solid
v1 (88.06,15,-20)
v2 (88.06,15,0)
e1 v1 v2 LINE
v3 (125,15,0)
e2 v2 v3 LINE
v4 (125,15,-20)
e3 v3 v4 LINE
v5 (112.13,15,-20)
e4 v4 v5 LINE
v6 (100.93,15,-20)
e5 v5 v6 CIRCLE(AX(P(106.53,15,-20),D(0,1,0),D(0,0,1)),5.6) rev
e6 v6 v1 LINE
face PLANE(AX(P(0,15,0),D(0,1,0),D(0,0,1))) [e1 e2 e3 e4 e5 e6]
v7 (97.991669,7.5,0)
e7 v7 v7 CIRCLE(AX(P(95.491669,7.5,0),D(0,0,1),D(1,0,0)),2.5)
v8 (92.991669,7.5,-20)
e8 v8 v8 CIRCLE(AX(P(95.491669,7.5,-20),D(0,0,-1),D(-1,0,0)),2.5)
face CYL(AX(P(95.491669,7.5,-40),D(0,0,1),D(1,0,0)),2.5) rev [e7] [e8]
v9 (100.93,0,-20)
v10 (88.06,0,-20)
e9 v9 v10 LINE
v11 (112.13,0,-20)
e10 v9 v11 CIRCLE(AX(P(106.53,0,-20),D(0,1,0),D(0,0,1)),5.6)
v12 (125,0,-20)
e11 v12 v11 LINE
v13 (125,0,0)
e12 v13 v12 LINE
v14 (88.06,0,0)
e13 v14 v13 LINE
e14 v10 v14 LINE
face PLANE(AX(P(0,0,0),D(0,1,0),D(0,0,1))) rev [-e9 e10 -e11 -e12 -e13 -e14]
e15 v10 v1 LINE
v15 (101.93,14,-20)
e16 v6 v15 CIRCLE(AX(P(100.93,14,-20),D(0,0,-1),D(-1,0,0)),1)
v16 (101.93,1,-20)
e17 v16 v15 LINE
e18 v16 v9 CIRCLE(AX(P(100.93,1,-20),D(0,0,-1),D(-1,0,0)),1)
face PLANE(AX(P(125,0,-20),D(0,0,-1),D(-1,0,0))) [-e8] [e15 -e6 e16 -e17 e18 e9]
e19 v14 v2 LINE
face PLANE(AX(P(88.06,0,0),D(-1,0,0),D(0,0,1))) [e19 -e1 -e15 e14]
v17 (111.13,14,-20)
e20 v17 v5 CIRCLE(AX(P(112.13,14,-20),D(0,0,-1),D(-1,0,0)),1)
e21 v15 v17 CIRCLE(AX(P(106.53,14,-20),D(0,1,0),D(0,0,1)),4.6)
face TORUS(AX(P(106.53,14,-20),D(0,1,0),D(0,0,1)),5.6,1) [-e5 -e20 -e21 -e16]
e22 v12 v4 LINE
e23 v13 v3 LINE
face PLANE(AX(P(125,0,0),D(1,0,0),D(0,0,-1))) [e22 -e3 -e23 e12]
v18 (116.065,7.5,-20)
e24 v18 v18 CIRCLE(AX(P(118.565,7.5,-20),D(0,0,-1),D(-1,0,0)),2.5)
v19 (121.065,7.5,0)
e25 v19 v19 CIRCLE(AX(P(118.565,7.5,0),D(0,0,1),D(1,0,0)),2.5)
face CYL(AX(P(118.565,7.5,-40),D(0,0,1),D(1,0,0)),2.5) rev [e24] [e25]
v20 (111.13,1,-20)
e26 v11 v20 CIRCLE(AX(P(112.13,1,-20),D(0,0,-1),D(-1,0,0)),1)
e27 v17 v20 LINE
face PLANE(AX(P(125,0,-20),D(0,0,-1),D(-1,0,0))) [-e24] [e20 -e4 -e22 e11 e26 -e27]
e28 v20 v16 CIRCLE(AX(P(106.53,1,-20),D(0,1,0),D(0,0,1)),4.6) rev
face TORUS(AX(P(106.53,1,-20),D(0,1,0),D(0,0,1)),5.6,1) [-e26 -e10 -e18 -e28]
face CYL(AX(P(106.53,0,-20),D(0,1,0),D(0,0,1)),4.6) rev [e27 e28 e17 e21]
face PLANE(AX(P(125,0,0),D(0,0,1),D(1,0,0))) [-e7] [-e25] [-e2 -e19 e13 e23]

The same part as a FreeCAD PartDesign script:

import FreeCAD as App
import Part
import Sketcher

V = App.Vector


def edges_at(feature, points):
    """Names of the edges that pass closest to the given points."""
    edges = feature.Shape.Edges
    near = lambda p: min(range(len(edges)), key=lambda i: edges[i].distToShape(Part.Vertex(*p))[0])
    return sorted({f"Edge{near(p) + 1}" for p in points})


def add_polygon(sketch, points):
    """Adds a closed chain of lines whose ends are joined by coincident constraints."""
    first, n = sketch.GeometryCount, len(points)
    for a, b in zip(points, points[1:] + points[:1]):
        sketch.addGeometry(Part.LineSegment(App.Vector(*a, 0), App.Vector(*b, 0)), False)
    for i in range(n):
        sketch.addConstraint(Sketcher.Constraint("Coincident", first + i, 2, first + (i + 1) % n, 1))

doc = App.newDocument("Part")
body = doc.addObject("PartDesign::Body", "Body")

sketch1 = body.newObject("Sketcher::SketchObject", "Sketch")
sketch1.AttachmentSupport = (doc.getObject("XZ_Plane"), [""])
sketch1.MapMode = "FlatFace"
add_polygon(sketch1, [(0, -40), (0, 0), (125, 0), (125, -40)])
sketch1.addConstraint([
    Sketcher.Constraint("Vertical", 0),
    Sketcher.Constraint("Horizontal", 1),
    Sketcher.Constraint("Vertical", 2),
    Sketcher.Constraint("Horizontal", 3),
    Sketcher.Constraint("Coincident", 0, 2, -1, 1),
    Sketcher.Constraint("DistanceX", 1, 1, 1, 2, 125.0),
    Sketcher.Constraint("DistanceY", 0, 1, 0, 2, 40.0),
])
pad1 = body.newObject("PartDesign::Pad", "Pad")
pad1.Profile = sketch1
pad1.Length = 15
pad1.Reversed = True

sketch2 = body.newObject("Sketcher::SketchObject", "Sketch001")
sketch2.AttachmentSupport = (doc.getObject("XZ_Plane"), [""])
sketch2.MapMode = "FlatFace"
sketch2.AttachmentOffset = App.Placement(V(0, 0, -15), App.Rotation())
sketch2.addGeometry([
    Part.Circle(V(18.5, -20, 0), V(0, 0, 1), 8.9),
    Part.Circle(V(106.5, -20, 0), V(0, 0, 1), 4.6),
    Part.Circle(V(62.5, -20, 0), V(0, 0, 1), 13.3),
], False)
sketch2.addConstraint([
    Sketcher.Constraint("Horizontal", 0, 3, 1, 3),
    Sketcher.Constraint("Horizontal", 1, 3, 2, 3),
    Sketcher.Constraint("Diameter", 0, 17.8),
    Sketcher.Constraint("Diameter", 1, 9.2),
    Sketcher.Constraint("Diameter", 2, 26.6),
    Sketcher.Constraint("DistanceY", 0, 3, -1, 1, 20.0),
    Sketcher.Constraint("DistanceX", 0, 3, 1, 3, 88.0),
    Sketcher.Constraint("DistanceX", 0, 3, 2, 3, 44.0),
    Sketcher.Constraint("DistanceX", -1, 1, 0, 3, 18.526669),
])
pocket1 = body.newObject("PartDesign::Pocket", "Pocket")
pocket1.Profile = sketch2
pocket1.Type = "ThroughAll"
pocket1.Reversed = True
doc.recompute()

chamfer = body.newObject("PartDesign::Chamfer", "Chamfer")
chamfer.Base = (pocket1, edges_at(pocket1, [(18.527, 15, -28.9)]))
chamfer.Size = 1
doc.recompute()

chamfer2 = body.newObject("PartDesign::Chamfer", "Chamfer001")
chamfer2.Base = (chamfer, edges_at(chamfer, [(18.527, 0, -28.9)]))
chamfer2.Size = 1
doc.recompute()

fillet = body.newObject("PartDesign::Fillet", "Fillet")
fillet.Base = (chamfer2, edges_at(chamfer2, [
    (106.527, 0, -24.6),
    (106.527, 15, -24.6),
    (62.527, 0, -33.3),
    (62.527, 15, -33.3),
]))
fillet.Radius = 1

sketch3 = body.newObject("Sketcher::SketchObject", "Sketch002")
sketch3.AttachmentSupport = (doc.getObject("XZ_Plane"), [""])
sketch3.MapMode = "FlatFace"
sketch3.AttachmentOffset = App.Placement(V(0, 0, -15), App.Rotation())
add_polygon(sketch3, [(85, -20), (85, 0), (125, 0), (125, -20)])
sketch3.addConstraint([
    Sketcher.Constraint("Vertical", 0),
    Sketcher.Constraint("Horizontal", 1),
    Sketcher.Constraint("Vertical", 2),
    Sketcher.Constraint("Horizontal", 3),
    Sketcher.Constraint("PointOnObject", 0, 2, -1),
    Sketcher.Constraint("DistanceX", 1, 1, 1, 2, 40.0),
    Sketcher.Constraint("DistanceY", 0, 1, 0, 2, 20.0),
    Sketcher.Constraint("DistanceX", -1, 1, 0, 2, 85.0),
])
pocket2 = body.newObject("PartDesign::Pocket", "Pocket001")
pocket2.Profile = sketch3
pocket2.Type = "ThroughAll"
pocket2.Reversed = True
doc.recompute()

fillet2 = body.newObject("PartDesign::Fillet", "Fillet001")
fillet2.Base = (pocket2, edges_at(pocket2, [(0, 7.5, -40), (0, 7.5, 0)]))
fillet2.Radius = 5

sketch4 = body.newObject("Sketcher::SketchObject", "Sketch003")
sketch4.AttachmentSupport = (doc.getObject("XZ_Plane"), [""])
sketch4.MapMode = "FlatFace"
sketch4.AttachmentOffset = App.Placement(V(0, 0, -15), App.Rotation())
add_polygon(sketch4, [(85, -20), (85, 0), (88.1, 0), (88.1, -20)])
sketch4.addConstraint([
    Sketcher.Constraint("Vertical", 0),
    Sketcher.Constraint("Horizontal", 1),
    Sketcher.Constraint("Vertical", 2),
    Sketcher.Constraint("Horizontal", 3),
    Sketcher.Constraint("PointOnObject", 0, 2, -1),
    Sketcher.Constraint("DistanceY", 0, 1, 0, 2, 20.0),
    Sketcher.Constraint("DistanceX", -1, 1, 0, 2, 85.0),
    Sketcher.Constraint("DistanceX", 1, 1, 1, 2, 3.06),
])
pad2 = body.newObject("PartDesign::Pad", "Pad001")
pad2.Profile = sketch4
pad2.Length = 15

sketch5 = body.newObject("Sketcher::SketchObject", "Sketch004")
sketch5.AttachmentSupport = (doc.getObject("XY_Plane"), [""])
sketch5.MapMode = "FlatFace"
sketch5.AttachmentOffset = App.Placement(V(0, 0, -20), App.Rotation())
sketch5.addGeometry([
    Part.Circle(V(118.6, 7.5, 0), V(0, 0, 1), 2.5),
    Part.Circle(V(95.5, 7.5, 0), V(0, 0, 1), 2.5),
], False)
sketch5.addConstraint([
    Sketcher.Constraint("Equal", 0, 1),
    Sketcher.Constraint("Horizontal", 0, 3, 1, 3),
    Sketcher.Constraint("Diameter", 0, 5.0),
    Sketcher.Constraint("DistanceY", -1, 1, 0, 3, 7.5),
    Sketcher.Constraint("DistanceX", -1, 1, 0, 3, 118.565),
    Sketcher.Constraint("DistanceX", -1, 1, 1, 3, 95.491669),
])
pocket3 = body.newObject("PartDesign::Pocket", "Pocket002")
pocket3.Profile = sketch5
pocket3.Type = "ThroughAll"

sketch6 = body.newObject("Sketcher::SketchObject", "Sketch005")
sketch6.AttachmentSupport = (doc.getObject("XZ_Plane"), [""])
sketch6.MapMode = "FlatFace"
sketch6.AttachmentOffset = App.Placement(V(0, 0, -15), App.Rotation())
add_polygon(sketch6, [(-18, -56), (-18, 0), (88, 0), (88, -56)])
sketch6.addConstraint([
    Sketcher.Constraint("Vertical", 0),
    Sketcher.Constraint("Horizontal", 1),
    Sketcher.Constraint("Vertical", 2),
    Sketcher.Constraint("Horizontal", 3),
    Sketcher.Constraint("PointOnObject", 0, 2, -1),
    Sketcher.Constraint("DistanceX", -1, 1, 1, 2, 88.06),
    Sketcher.Constraint("DistanceX", 1, 1, 1, 2, 106.425382),
    Sketcher.Constraint("DistanceY", 0, 1, 0, 2, 56.336912),
])
pocket4 = body.newObject("PartDesign::Pocket", "Pocket003")
pocket4.Profile = sketch6
pocket4.Type = "ThroughAll"
pocket4.Reversed = True
body2 = doc.addObject("PartDesign::Body", "Body001")

sketch7 = body2.newObject("Sketcher::SketchObject", "Sketch006")
sketch7.AttachmentSupport = (doc.getObject("XZ_Plane001"), [""])
sketch7.MapMode = "FlatFace"
sketch7.AttachmentOffset = App.Placement(V(0, 0, -15), App.Rotation())
add_polygon(sketch7, [(88, -20), (88, 0), (125, 0), (125, -20)])
sketch7.addConstraint([
    Sketcher.Constraint("Vertical", 0),
    Sketcher.Constraint("Horizontal", 1),
    Sketcher.Constraint("Vertical", 2),
    Sketcher.Constraint("Horizontal", 3),
    Sketcher.Constraint("PointOnObject", 0, 2, -1),
    Sketcher.Constraint("DistanceY", 0, 1, 0, 2, 20.0),
    Sketcher.Constraint("DistanceX", -1, 1, 1, 2, 125.0),
    Sketcher.Constraint("DistanceX", 1, 1, 1, 2, 36.94),
])
pad3 = body2.newObject("PartDesign::Pad", "Pad002")
pad3.Profile = sketch7
pad3.Length = 15

sketch8 = body2.newObject("Sketcher::SketchObject", "Sketch007")
sketch8.AttachmentSupport = (doc.getObject("XY_Plane001"), [""])
sketch8.MapMode = "FlatFace"
sketch8.addGeometry([
    Part.Circle(V(95.5, 7.5, 0), V(0, 0, 1), 2.5),
    Part.Circle(V(118.6, 7.5, 0), V(0, 0, 1), 2.5),
], False)
sketch8.addConstraint([
    Sketcher.Constraint("Equal", 0, 1),
    Sketcher.Constraint("Horizontal", 0, 3, 1, 3),
    Sketcher.Constraint("Diameter", 0, 5.0),
    Sketcher.Constraint("DistanceY", -1, 1, 0, 3, 7.5),
    Sketcher.Constraint("DistanceX", -1, 1, 1, 3, 118.565),
    Sketcher.Constraint("DistanceX", -1, 1, 0, 3, 95.491669),
])
pocket5 = body2.newObject("PartDesign::Pocket", "Pocket004")
pocket5.Profile = sketch8
pocket5.Type = "ThroughAll"
body3 = doc.addObject("PartDesign::Body", "Body002")

sketch9 = body3.newObject("Sketcher::SketchObject", "Sketch008")
sketch9.AttachmentSupport = (doc.getObject("XZ_Plane002"), [""])
sketch9.MapMode = "FlatFace"
sketch9.AttachmentOffset = App.Placement(V(0, 0, -15), App.Rotation())
sketch9.addGeometry(Part.Circle(V(106.5, -20, 0), V(0, 0, 1), 4.6), False)
sketch9.addConstraint([
    Sketcher.Constraint("Diameter", 0, 9.2),
    Sketcher.Constraint("DistanceY", 0, 3, -1, 1, 20.0),
    Sketcher.Constraint("DistanceX", -1, 1, 0, 3, 106.53),
])
pad4 = body3.newObject("PartDesign::Pad", "Pad003")
pad4.Profile = sketch9
pad4.Length = 133.098448
doc.recompute()

body4 = doc.addObject("PartDesign::Body", "Body003")
body4.BaseFeature = body3
boolean = body.newObject("PartDesign::Boolean", "Boolean")
boolean.Type = "Cut"
boolean.addObjects([body4])
doc.recompute()

sketch10 = body.newObject("Sketcher::SketchObject", "Sketch009")
sketch10.AttachmentSupport = (doc.getObject("XZ_Plane"), [""])
sketch10.MapMode = "FlatFace"
sketch10.AttachmentOffset = App.Placement(V(0, 0, -15), App.Rotation())
add_polygon(sketch10, [(88, -42), (88, -20), (135, -20), (135, -42)])
sketch10.addConstraint([
    Sketcher.Constraint("Vertical", 0),
    Sketcher.Constraint("Horizontal", 1),
    Sketcher.Constraint("Vertical", 2),
    Sketcher.Constraint("Horizontal", 3),
    Sketcher.Constraint("DistanceY", 0, 2, -1, 1, 20.0),
    Sketcher.Constraint("DistanceX", -1, 1, 0, 2, 88.06),
    Sketcher.Constraint("DistanceX", 1, 1, 1, 2, 47.376769),
    Sketcher.Constraint("DistanceY", 0, 1, 0, 2, 22.006257),
])
pocket6 = body.newObject("PartDesign::Pocket", "Pocket005")
pocket6.Profile = sketch10
pocket6.Type = "ThroughAll"
pocket6.Reversed = True
doc.recompute()

boolean2 = body2.newObject("PartDesign::Boolean", "Boolean001")
boolean2.Type = "Cut"
boolean2.addObjects([body3])
doc.recompute()

fillet3 = body2.newObject("PartDesign::Fillet", "Fillet002")
fillet3.Base = (boolean2, edges_at(boolean2, [(106.53, 15, -15.4)]))
fillet3.Radius = 1
doc.recompute()

fillet4 = body2.newObject("PartDesign::Fillet", "Fillet003")
fillet4.Base = (fillet3, edges_at(fillet3, [(106.53, 0, -15.4)]))
fillet4.Radius = 1

doc.recompute()
